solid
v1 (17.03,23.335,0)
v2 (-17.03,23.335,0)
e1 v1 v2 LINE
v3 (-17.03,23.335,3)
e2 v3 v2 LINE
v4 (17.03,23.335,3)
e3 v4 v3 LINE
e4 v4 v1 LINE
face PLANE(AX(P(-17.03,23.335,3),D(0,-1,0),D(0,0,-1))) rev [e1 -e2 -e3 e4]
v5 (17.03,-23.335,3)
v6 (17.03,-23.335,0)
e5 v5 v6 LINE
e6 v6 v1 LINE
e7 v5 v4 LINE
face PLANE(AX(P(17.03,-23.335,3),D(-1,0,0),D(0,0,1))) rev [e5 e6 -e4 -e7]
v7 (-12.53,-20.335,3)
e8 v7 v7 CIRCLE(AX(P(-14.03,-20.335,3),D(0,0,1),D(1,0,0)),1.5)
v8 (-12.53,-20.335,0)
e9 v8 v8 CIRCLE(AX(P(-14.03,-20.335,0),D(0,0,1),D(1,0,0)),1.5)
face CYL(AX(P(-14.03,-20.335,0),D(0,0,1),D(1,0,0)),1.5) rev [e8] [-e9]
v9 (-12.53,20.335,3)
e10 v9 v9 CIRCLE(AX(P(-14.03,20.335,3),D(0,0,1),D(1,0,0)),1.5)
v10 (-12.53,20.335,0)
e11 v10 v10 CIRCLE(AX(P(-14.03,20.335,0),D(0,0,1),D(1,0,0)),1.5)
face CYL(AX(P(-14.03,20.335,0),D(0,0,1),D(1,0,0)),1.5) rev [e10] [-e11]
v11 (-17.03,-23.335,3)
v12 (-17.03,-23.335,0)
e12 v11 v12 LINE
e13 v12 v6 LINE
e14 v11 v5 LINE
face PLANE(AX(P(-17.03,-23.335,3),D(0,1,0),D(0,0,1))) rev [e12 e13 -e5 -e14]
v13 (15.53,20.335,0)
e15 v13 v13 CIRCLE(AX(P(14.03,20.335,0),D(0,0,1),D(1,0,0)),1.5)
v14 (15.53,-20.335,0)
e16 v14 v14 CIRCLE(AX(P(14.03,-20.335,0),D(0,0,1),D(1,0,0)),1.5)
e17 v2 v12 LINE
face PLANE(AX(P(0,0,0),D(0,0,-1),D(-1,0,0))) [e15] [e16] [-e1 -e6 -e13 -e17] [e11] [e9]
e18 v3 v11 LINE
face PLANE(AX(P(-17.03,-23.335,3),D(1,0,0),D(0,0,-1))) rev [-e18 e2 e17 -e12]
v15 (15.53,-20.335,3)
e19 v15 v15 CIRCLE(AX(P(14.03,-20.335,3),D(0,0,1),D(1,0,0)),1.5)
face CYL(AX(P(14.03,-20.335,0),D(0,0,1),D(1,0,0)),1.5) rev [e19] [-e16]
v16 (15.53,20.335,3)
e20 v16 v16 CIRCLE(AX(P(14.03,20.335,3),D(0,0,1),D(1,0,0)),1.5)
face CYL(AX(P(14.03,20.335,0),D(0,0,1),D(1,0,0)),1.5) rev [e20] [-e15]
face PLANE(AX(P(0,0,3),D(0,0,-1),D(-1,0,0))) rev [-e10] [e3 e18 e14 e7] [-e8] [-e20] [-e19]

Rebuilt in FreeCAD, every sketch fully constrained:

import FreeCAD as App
import Part
import Sketcher


def add_polygon(sketch, points):
    """Adds a closed chain of lines whose ends are joined by coincident constraints."""
    first, n = sketch.GeometryCount, len(points)
    for a, b in zip(points, points[1:] + points[:1]):
        sketch.addGeometry(Part.LineSegment(App.Vector(*a, 0), App.Vector(*b, 0)), False)
    for i in range(n):
        sketch.addConstraint(Sketcher.Constraint("Coincident", first + i, 2, first + (i + 1) % n, 1))

doc = App.newDocument("Part")
body = doc.addObject("PartDesign::Body", "Body")

# Sketch on XY plane
sketch1 = body.newObject("Sketcher::SketchObject", "Sketch")
sketch1.AttachmentSupport = (doc.getObject("XY_Plane"), [""])
sketch1.MapMode = "FlatFace"
add_polygon(sketch1, [(-17.03, 23.335), (-17.03, -23.335), (17.03, -23.335), (17.03, 23.335)])  # lines 0-3
sketch1.addConstraint(Sketcher.Constraint("Vertical", 0))
sketch1.addConstraint(Sketcher.Constraint("Horizontal", 1))
sketch1.addConstraint(Sketcher.Constraint("Vertical", 2))
sketch1.addConstraint(Sketcher.Constraint("Horizontal", 3))
sketch1.addConstraint(Sketcher.Constraint("Symmetric", 0, 2, 2, 2, -1, 1))
sketch1.addConstraint(Sketcher.Constraint("DistanceX", 1, 1, 1, 2, 34.06))
sketch1.addConstraint(Sketcher.Constraint("DistanceY", 0, 2, 0, 1, 46.67))
pad1 = body.newObject("PartDesign::Pad", "Pad")
pad1.Profile = sketch1
pad1.Length = 3

# Sketch on XY plane
sketch2 = body.newObject("Sketcher::SketchObject", "Sketch001")
sketch2.AttachmentSupport = (doc.getObject("XY_Plane"), [""])
sketch2.MapMode = "FlatFace"
sketch2.AttachmentOffset = App.Placement(App.Vector(0, 0, 3), App.Rotation())
sketch2.addGeometry(Part.Circle(App.Vector(-14.03, 20.335, 0), App.Vector(0, 0, 1), 1.5), False)
sketch2.addGeometry(Part.Circle(App.Vector(14.03, 20.335, 0), App.Vector(0, 0, 1), 1.5), False)
sketch2.addGeometry(Part.Circle(App.Vector(14.03, -20.335, 0), App.Vector(0, 0, 1), 1.5), False)
sketch2.addGeometry(Part.Circle(App.Vector(-14.03, -20.335, 0), App.Vector(0, 0, 1), 1.5), False)
sketch2.addConstraint(Sketcher.Constraint("Equal", 0, 1))
sketch2.addConstraint(Sketcher.Constraint("Equal", 1, 2))
sketch2.addConstraint(Sketcher.Constraint("Equal", 2, 3))
sketch2.addConstraint(Sketcher.Constraint("Symmetric", 0, 3, 2, 3, -1, 1))
sketch2.addConstraint(Sketcher.Constraint("Symmetric", 1, 3, 3, 3, -1, 1))
sketch2.addConstraint(Sketcher.Constraint("Symmetric", 0, 3, 1, 3, -2))
sketch2.addConstraint(Sketcher.Constraint("Diameter", 0, 3.0))
sketch2.addConstraint(Sketcher.Constraint("DistanceX", 0, 3, -1, 1, 14.03))
sketch2.addConstraint(Sketcher.Constraint("DistanceY", 2, 3, 1, 3, 40.67))
pocket1 = body.newObject("PartDesign::Pocket", "Pocket")
pocket1.Profile = sketch2
pocket1.Type = "ThroughAll"

doc.recompute()
